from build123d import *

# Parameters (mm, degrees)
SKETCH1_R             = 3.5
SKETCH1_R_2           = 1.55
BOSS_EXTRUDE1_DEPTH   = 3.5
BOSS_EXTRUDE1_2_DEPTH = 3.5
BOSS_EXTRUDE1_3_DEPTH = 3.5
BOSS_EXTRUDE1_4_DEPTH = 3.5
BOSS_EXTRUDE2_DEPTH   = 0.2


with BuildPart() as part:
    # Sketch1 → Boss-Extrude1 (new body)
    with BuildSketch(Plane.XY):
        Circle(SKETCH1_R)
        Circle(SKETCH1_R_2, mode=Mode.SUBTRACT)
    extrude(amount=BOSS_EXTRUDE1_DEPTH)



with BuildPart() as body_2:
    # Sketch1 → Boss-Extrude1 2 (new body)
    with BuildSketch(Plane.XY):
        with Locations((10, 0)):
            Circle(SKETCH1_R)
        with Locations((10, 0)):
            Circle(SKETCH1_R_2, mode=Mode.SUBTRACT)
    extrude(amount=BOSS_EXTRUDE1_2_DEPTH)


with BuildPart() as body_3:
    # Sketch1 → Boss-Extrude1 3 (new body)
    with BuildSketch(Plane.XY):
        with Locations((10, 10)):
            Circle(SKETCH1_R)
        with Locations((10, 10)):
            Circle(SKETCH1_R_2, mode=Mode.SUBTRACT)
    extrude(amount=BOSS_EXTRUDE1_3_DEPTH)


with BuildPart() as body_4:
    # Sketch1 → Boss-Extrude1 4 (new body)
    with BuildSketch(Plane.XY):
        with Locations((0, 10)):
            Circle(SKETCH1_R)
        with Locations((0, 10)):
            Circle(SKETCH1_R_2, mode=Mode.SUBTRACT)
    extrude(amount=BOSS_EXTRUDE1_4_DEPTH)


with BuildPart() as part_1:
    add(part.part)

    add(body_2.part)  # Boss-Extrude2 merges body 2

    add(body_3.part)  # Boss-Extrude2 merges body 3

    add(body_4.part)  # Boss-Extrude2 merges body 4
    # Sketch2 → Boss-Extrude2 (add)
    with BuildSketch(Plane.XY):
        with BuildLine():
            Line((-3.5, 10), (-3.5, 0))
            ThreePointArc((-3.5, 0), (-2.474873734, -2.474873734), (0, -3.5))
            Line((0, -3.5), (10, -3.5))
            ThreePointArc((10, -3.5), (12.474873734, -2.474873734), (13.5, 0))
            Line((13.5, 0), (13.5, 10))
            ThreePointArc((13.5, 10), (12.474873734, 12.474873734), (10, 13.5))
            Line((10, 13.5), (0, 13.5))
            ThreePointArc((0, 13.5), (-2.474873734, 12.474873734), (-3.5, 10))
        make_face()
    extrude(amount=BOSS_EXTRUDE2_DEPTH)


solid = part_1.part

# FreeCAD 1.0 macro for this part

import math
import FreeCAD as App
import Part
import Sketcher

V = App.Vector

doc = App.newDocument("Part")
body = doc.addObject("PartDesign::Body", "Body")

# Sketch on XY plane
sketch1 = body.newObject("Sketcher::SketchObject", "Sketch")
sketch1.AttachmentSupport = (doc.getObject("XY_Plane"), [""])
sketch1.MapMode = "FlatFace"
sketch1.addGeometry([
    Part.Circle(V(0, 0, 0), V(0, 0, 1), 3.5),
    Part.Circle(V(0, 0, 0), V(0, 0, 1), 1.6),
], False)
sketch1.addConstraint([
    Sketcher.Constraint("Coincident", 0, 3, -1, 1),
    Sketcher.Constraint("Coincident", 1, 3, -1, 1),
    Sketcher.Constraint("Diameter", 0, 7.0),
    Sketcher.Constraint("Diameter", 1, 3.1),
])
pad1 = body.newObject("PartDesign::Pad", "Pad")
pad1.Profile = sketch1
pad1.Length = 3.5
body2 = doc.addObject("PartDesign::Body", "Body001")

# Sketch on XY plane
sketch2 = body2.newObject("Sketcher::SketchObject", "Sketch001")
sketch2.AttachmentSupport = (doc.getObject("XY_Plane001"), [""])
sketch2.MapMode = "FlatFace"
sketch2.addGeometry([
    Part.Circle(V(10, 0, 0), V(0, 0, 1), 3.5),
    Part.Circle(V(10, 0, 0), V(0, 0, 1), 1.6),
], False)
sketch2.addConstraint([
    Sketcher.Constraint("Coincident", 1, 3, 0, 3),
    Sketcher.Constraint("PointOnObject", 0, 3, -1),
    Sketcher.Constraint("Diameter", 0, 7.0),
    Sketcher.Constraint("Diameter", 1, 3.1),
    Sketcher.Constraint("DistanceX", -1, 1, 0, 3, 10.0),
])
pad2 = body2.newObject("PartDesign::Pad", "Pad001")
pad2.Profile = sketch2
pad2.Length = 3.5
body3 = doc.addObject("PartDesign::Body", "Body002")

# Sketch on XY plane
sketch3 = body3.newObject("Sketcher::SketchObject", "Sketch002")
sketch3.AttachmentSupport = (doc.getObject("XY_Plane002"), [""])
sketch3.MapMode = "FlatFace"
sketch3.addGeometry([
    Part.Circle(V(10, 10, 0), V(0, 0, 1), 3.5),
    Part.Circle(V(10, 10, 0), V(0, 0, 1), 1.6),
], False)
sketch3.addConstraint([
    Sketcher.Constraint("Coincident", 1, 3, 0, 3),
    Sketcher.Constraint("Diameter", 0, 7.0),
    Sketcher.Constraint("Diameter", 1, 3.1),
    Sketcher.Constraint("DistanceX", -1, 1, 0, 3, 10.0),
    Sketcher.Constraint("DistanceY", -1, 1, 0, 3, 10.0),
])
pad3 = body3.newObject("PartDesign::Pad", "Pad002")
pad3.Profile = sketch3
pad3.Length = 3.5
body4 = doc.addObject("PartDesign::Body", "Body003")

# Sketch on XY plane
sketch4 = body4.newObject("Sketcher::SketchObject", "Sketch003")
sketch4.AttachmentSupport = (doc.getObject("XY_Plane003"), [""])
sketch4.MapMode = "FlatFace"
sketch4.addGeometry([
    Part.Circle(V(0, 10, 0), V(0, 0, 1), 3.5),
    Part.Circle(V(0, 10, 0), V(0, 0, 1), 1.6),
], False)
sketch4.addConstraint([
    Sketcher.Constraint("Coincident", 1, 3, 0, 3),
    Sketcher.Constraint("PointOnObject", 0, 3, -2),
    Sketcher.Constraint("Diameter", 0, 7.0),
    Sketcher.Constraint("Diameter", 1, 3.1),
    Sketcher.Constraint("DistanceY", -1, 1, 0, 3, 10.0),
])
pad4 = body4.newObject("PartDesign::Pad", "Pad003")
pad4.Profile = sketch4
pad4.Length = 3.5
body.AllowCompound = True
doc.recompute()

boolean = body.newObject("PartDesign::Boolean", "Boolean")
boolean.Type = "Fuse"
boolean.addObjects([body2])
doc.recompute()

boolean2 = body.newObject("PartDesign::Boolean", "Boolean001")
boolean2.Type = "Fuse"
boolean2.addObjects([body3])
doc.recompute()

boolean3 = body.newObject("PartDesign::Boolean", "Boolean002")
boolean3.Type = "Fuse"
boolean3.addObjects([body4])

# Sketch on XY plane
sketch5 = body.newObject("Sketcher::SketchObject", "Sketch004")
sketch5.AttachmentSupport = (doc.getObject("XY_Plane"), [""])
sketch5.MapMode = "FlatFace"
sketch5.addGeometry([
    Part.LineSegment(V(-3.5, 10, 0), V(-3.5, 0, 0)),  # 0
    Part.ArcOfCircle(Part.Circle(V(0, 0, 0), V(0, 0, 1), 3.5), math.radians(-180), math.radians(-90)),  # 1
    Part.LineSegment(V(0, -3.5, 0), V(10, -3.5, 0)),  # 2
    Part.ArcOfCircle(Part.Circle(V(10, 0, 0), V(0, 0, 1), 3.5), math.radians(-90), math.radians(0)),  # 3
    Part.LineSegment(V(13.5, 0, 0), V(13.5, 10, 0)),  # 4
    Part.ArcOfCircle(Part.Circle(V(10, 10, 0), V(0, 0, 1), 3.5), math.radians(0), math.radians(90)),  # 5
    Part.LineSegment(V(10, 13.5, 0), V(0, 13.5, 0)),  # 6
    Part.ArcOfCircle(Part.Circle(V(0, 10, 0), V(0, 0, 1), 3.5), math.radians(90), math.radians(180)),  # 7
], False)
sketch5.addConstraint([
    Sketcher.Constraint("Tangent", 0, 2, 1, 1),
    Sketcher.Constraint("Tangent", 1, 2, 2, 1),
    Sketcher.Constraint("Tangent", 2, 2, 3, 1),
    Sketcher.Constraint("Tangent", 3, 2, 4, 1),
    Sketcher.Constraint("Tangent", 4, 2, 5, 1),
    Sketcher.Constraint("Tangent", 5, 2, 6, 1),
    Sketcher.Constraint("Tangent", 6, 2, 7, 1),
    Sketcher.Constraint("Tangent", 7, 2, 0, 1),
    Sketcher.Constraint("Vertical", 0),
    Sketcher.Constraint("Horizontal", 2),
    Sketcher.Constraint("Vertical", 4),
    Sketcher.Constraint("Horizontal", 6),
    Sketcher.Constraint("Coincident", 1, 3, -1, 1),
    Sketcher.Constraint("Equal", 1, 3),
    Sketcher.Constraint("Equal", 3, 5),
    Sketcher.Constraint("Equal", 5, 7),
    Sketcher.Constraint("Equal", 6, 0),
    Sketcher.Constraint("Radius", 1, 3.5),
    Sketcher.Constraint("DistanceX", 2, 1, 2, 2, 10.0),
])
pad5 = body.newObject("PartDesign::Pad", "Pad004")
pad5.Profile = sketch5
pad5.Length = 0.2

doc.recompute()
